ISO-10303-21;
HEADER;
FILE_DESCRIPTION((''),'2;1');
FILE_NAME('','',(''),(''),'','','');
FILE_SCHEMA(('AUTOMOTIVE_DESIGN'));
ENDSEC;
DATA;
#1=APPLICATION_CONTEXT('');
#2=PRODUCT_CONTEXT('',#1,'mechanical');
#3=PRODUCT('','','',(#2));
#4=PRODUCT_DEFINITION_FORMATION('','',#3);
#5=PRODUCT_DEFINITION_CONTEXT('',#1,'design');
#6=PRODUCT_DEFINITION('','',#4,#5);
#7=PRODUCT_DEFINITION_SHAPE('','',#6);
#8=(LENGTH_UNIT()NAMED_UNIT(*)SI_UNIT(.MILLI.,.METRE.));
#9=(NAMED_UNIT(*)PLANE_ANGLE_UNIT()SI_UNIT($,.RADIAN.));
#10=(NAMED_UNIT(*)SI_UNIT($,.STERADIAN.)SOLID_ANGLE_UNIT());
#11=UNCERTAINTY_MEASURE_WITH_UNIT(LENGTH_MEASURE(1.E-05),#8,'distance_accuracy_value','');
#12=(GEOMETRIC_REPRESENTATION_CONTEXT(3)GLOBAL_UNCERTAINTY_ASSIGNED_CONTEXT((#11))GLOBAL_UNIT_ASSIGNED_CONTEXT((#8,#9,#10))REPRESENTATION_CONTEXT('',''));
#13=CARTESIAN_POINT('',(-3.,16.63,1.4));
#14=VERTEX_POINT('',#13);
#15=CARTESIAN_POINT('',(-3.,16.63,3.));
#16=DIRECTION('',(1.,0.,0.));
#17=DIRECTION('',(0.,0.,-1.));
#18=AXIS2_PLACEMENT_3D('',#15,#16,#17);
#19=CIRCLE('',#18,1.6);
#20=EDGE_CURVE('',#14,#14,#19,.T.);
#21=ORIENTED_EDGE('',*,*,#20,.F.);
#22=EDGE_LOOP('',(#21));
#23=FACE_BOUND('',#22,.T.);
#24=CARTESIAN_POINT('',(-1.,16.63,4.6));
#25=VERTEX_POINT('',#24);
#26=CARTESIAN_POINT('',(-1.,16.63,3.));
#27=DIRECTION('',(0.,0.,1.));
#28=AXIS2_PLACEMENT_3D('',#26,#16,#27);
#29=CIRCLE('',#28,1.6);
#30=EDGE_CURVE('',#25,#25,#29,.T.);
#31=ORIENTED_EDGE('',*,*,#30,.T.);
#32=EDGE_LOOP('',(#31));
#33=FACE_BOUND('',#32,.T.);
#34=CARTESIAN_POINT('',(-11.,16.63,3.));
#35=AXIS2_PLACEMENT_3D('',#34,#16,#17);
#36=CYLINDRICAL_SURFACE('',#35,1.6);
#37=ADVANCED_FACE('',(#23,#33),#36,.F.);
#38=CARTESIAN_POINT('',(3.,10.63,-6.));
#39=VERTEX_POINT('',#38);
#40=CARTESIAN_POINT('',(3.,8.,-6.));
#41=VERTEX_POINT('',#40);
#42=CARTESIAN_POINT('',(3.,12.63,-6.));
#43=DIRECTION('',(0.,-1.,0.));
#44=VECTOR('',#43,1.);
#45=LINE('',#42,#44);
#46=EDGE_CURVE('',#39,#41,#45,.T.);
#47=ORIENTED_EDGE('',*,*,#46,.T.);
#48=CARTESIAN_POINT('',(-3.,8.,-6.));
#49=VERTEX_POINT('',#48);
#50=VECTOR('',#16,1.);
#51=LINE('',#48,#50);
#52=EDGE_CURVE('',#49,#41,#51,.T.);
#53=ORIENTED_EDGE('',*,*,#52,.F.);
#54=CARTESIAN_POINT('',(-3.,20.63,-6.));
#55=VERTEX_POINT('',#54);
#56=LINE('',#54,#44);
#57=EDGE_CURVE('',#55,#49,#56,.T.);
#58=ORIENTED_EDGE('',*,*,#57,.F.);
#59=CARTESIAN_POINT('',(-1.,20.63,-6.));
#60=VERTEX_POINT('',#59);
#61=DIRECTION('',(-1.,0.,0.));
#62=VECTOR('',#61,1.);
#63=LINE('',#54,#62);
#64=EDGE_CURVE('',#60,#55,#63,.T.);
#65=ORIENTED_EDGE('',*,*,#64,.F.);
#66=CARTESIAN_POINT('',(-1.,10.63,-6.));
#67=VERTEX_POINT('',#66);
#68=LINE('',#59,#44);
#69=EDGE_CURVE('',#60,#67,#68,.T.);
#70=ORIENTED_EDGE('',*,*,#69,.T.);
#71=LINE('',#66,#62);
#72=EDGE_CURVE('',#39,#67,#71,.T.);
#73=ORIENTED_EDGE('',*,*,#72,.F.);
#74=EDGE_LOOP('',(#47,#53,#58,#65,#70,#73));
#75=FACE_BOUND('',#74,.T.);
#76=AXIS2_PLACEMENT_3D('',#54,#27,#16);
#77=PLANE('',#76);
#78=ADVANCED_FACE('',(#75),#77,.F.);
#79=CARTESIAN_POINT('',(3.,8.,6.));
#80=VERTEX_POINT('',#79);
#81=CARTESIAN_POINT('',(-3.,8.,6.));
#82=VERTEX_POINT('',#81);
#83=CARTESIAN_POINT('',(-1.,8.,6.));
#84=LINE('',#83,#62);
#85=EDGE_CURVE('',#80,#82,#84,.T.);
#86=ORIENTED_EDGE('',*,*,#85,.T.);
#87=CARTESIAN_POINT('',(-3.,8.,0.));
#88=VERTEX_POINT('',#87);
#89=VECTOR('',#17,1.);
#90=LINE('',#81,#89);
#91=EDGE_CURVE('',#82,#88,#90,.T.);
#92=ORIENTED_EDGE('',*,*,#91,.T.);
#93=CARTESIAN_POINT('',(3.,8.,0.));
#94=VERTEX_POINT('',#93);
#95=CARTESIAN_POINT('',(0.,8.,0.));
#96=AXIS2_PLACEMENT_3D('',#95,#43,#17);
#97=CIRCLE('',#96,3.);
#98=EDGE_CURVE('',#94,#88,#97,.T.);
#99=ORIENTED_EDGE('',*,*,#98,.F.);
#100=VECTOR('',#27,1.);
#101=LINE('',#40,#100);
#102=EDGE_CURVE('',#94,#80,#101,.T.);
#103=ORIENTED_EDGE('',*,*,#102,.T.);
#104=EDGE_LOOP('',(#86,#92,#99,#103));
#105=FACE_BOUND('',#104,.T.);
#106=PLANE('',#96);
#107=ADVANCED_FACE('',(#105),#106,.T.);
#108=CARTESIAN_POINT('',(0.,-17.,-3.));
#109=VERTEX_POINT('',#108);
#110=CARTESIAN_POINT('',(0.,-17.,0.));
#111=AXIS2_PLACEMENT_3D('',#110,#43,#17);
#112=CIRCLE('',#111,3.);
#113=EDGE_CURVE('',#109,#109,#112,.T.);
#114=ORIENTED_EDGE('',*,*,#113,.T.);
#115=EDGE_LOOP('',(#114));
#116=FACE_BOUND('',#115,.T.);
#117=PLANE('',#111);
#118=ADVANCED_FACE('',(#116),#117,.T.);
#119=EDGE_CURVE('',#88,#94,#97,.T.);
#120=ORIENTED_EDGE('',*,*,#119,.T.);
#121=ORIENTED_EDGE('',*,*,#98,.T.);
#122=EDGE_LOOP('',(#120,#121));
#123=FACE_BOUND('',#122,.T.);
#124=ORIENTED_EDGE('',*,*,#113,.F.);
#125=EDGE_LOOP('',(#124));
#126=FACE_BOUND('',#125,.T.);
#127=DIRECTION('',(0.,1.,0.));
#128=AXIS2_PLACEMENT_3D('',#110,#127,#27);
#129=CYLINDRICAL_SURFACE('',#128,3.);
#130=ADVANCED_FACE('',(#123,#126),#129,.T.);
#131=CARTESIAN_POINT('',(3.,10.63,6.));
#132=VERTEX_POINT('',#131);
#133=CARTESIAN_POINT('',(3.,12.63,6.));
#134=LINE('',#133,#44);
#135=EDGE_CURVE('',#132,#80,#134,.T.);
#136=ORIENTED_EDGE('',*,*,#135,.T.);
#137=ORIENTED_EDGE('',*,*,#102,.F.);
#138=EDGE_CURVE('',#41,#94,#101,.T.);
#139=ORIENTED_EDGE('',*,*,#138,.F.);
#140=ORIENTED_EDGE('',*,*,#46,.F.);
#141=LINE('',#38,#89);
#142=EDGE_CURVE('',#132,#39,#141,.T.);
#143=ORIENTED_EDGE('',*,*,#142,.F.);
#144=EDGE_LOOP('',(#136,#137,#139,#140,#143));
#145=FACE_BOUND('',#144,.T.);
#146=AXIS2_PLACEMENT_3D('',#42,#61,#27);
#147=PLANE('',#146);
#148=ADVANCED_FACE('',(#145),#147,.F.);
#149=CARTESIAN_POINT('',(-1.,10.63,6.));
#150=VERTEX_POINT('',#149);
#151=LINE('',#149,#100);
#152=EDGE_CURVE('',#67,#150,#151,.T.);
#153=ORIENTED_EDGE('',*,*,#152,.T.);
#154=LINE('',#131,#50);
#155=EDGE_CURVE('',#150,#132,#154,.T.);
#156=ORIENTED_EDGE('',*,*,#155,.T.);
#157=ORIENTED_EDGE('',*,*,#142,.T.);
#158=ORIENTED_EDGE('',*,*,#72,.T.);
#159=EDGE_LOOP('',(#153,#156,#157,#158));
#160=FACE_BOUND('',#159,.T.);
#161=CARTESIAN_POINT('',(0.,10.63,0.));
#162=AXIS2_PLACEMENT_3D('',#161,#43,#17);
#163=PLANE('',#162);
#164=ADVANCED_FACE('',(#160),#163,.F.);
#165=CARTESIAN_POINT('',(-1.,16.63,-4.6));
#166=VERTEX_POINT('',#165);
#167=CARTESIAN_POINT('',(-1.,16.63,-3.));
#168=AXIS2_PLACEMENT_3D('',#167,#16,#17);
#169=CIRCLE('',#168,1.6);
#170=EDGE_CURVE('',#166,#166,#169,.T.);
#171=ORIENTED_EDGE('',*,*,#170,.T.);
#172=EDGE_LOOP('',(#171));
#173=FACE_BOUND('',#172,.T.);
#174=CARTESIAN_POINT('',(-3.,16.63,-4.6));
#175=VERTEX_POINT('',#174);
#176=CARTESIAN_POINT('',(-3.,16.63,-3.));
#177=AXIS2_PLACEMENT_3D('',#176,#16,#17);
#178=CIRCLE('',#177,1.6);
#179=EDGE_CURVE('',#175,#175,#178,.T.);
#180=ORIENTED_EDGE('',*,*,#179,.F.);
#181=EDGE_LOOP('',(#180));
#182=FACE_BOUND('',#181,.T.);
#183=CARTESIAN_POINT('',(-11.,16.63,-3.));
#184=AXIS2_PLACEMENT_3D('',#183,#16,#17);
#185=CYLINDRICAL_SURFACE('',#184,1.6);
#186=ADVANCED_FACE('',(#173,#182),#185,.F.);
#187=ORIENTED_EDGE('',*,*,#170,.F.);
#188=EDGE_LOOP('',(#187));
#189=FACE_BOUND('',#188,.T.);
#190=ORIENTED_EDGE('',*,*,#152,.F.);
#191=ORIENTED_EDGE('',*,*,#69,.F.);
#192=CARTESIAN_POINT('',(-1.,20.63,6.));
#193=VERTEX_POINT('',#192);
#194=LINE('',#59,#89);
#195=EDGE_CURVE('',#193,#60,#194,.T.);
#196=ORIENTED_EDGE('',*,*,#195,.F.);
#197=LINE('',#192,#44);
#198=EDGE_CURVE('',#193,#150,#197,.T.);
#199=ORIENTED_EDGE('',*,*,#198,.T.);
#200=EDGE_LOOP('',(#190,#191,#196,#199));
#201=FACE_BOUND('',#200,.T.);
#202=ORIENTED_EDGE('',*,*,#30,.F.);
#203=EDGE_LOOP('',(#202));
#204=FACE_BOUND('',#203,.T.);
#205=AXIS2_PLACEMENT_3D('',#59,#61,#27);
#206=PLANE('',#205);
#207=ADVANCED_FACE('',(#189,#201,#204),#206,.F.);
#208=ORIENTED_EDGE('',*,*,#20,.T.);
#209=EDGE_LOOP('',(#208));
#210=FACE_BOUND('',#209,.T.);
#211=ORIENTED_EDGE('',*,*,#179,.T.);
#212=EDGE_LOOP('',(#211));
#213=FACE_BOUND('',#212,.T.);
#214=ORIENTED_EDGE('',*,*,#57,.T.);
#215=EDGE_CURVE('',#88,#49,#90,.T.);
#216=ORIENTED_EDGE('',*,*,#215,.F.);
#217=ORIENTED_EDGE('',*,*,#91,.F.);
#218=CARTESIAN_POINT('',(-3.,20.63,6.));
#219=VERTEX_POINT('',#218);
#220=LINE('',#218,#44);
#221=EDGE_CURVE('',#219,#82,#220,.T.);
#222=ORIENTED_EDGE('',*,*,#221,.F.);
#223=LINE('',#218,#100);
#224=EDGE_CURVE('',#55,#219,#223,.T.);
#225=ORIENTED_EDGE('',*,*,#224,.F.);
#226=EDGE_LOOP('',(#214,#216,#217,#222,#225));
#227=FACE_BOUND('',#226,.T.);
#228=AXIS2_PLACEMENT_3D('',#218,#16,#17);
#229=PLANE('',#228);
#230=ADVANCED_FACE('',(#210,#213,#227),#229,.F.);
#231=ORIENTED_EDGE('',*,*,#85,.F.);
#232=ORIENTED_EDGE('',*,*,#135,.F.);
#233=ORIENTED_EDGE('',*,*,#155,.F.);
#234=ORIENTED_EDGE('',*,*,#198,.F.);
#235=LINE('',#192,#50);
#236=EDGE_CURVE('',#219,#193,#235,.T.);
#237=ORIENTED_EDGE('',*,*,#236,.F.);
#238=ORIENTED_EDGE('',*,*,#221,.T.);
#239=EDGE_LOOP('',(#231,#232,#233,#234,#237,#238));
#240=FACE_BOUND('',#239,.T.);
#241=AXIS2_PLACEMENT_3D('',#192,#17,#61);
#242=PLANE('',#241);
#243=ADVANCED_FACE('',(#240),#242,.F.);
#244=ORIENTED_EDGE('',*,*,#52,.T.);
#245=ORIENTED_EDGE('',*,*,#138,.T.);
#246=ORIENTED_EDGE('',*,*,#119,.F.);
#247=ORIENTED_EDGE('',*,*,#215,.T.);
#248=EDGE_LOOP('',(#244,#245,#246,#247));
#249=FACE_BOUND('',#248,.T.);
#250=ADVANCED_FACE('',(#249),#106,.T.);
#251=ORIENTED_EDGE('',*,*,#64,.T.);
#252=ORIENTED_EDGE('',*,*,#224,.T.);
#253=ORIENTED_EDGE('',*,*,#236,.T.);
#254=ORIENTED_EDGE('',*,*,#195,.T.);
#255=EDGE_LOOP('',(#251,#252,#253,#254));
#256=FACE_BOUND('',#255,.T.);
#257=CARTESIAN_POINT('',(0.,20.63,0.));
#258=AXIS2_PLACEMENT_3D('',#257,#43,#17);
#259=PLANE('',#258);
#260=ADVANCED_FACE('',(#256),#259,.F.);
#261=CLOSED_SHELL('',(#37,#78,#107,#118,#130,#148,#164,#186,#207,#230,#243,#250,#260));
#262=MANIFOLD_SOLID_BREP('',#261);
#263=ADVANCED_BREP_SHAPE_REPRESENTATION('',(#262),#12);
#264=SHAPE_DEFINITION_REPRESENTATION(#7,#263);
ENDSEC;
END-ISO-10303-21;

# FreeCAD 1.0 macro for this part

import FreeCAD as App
import Part
import Sketcher

doc = App.newDocument("Part")
params = doc.addObject("Spreadsheet::Sheet", "Params")
for row, (alias, value) in enumerate([
    ("sketch1_diameter", "24.5 mm"),
    ("sketch1_diameter2", "2.5 mm"),
    ("pad1_length", "2 mm"),
    ("sketch2_diameter", "6 mm"),
    ("pad2_length", "10.63 mm"),
    ("sketch3_width", "2 mm"),
    ("sketch3_height", "12 mm"),
    ("pad3_length", "8 mm"),
    ("sketch4_diameter", "3.2 mm"),
    ("pocket1_length", "10 mm"),
    ("sketch5_width", "6 mm"),
    ("sketch5_height", "12 mm"),
    ("pad4_length", "10.63 mm"),
    ("sketch6_width", "4 mm"),
    ("sketch6_height", "12 mm"),
    ("pocket2_length", "2 mm"),
    ("sketch7_diameter", "24.5 mm"),
    ("pocket3_length", "8 mm"),
    ("sketch8_diameter", "6 mm"),
    ("pad5_length", "25 mm"),
], start=1):
    params.set(f"A{row}", alias)
    params.set(f"B{row}", "=" + value)
    params.setAlias(f"B{row}", alias)

body = doc.addObject("PartDesign::Body", "Body")

# Sketch on XZ plane
sketch1 = doc.addObject("Sketcher::SketchObject", "Sketch")
body.addObject(sketch1)
sketch1.AttachmentSupport = (doc.XZ_Plane, [""])
sketch1.MapMode = "FlatFace"
sketch1.addGeometry([
    Part.Circle(App.Vector(0, 0, 0), App.Vector(0, 0, 1), 12.2),  # 0
    Part.Circle(App.Vector(0, 8, 0), App.Vector(0, 0, 1), 1.2),  # 1
    Part.Circle(App.Vector(-8, 0, 0), App.Vector(0, 0, 1), 1.2),  # 2
    Part.Circle(App.Vector(8, 0, 0), App.Vector(0, 0, 1), 1.2),  # 3
    Part.Circle(App.Vector(0, -8, 0), App.Vector(0, 0, 1), 1.2),  # 4
], False)
sketch1.addConstraint([
    Sketcher.Constraint("Coincident", 0, 3, -1, 1),
    Sketcher.Constraint("Equal", 1, 2),
    Sketcher.Constraint("Equal", 2, 3),
    Sketcher.Constraint("Equal", 3, 4),
    Sketcher.Constraint("Symmetric", 2, 3, 3, 3, -1, 1),
    Sketcher.Constraint("Symmetric", 1, 3, 4, 3, -1, 1),
    Sketcher.Constraint("PointOnObject", 1, 3, -2),
    Sketcher.Constraint("PointOnObject", 2, 3, -1),
    Sketcher.Constraint("Diameter", 0, 24.5),
    Sketcher.Constraint("Diameter", 1, 2.5),
    Sketcher.Constraint("DistanceY", -1, 1, 1, 3, 8.0),
    Sketcher.Constraint("DistanceX", 2, 3, -1, 1, 8.0),
])
sketch1.setExpression("Constraints[8]", "Params.sketch1_diameter")
sketch1.setExpression("Constraints[9]", "Params.sketch1_diameter2")
pad1 = doc.addObject("PartDesign::Pad", "Pad")
body.addObject(pad1)
pad1.Profile = sketch1
pad1.setExpression("Length", "Params.pad1_length")
pad1.Reversed = True

# Sketch on XZ plane
sketch2 = doc.addObject("Sketcher::SketchObject", "Sketch001")
body.addObject(sketch2)
sketch2.AttachmentSupport = (doc.XZ_Plane, [""])
sketch2.MapMode = "FlatFace"
sketch2.AttachmentOffset = App.Placement(App.Vector(0, 0, -2), App.Rotation())
sketch2.addGeometry(Part.Circle(App.Vector(0, 0, 0), App.Vector(0, 0, 1), 3), False)
sketch2.addConstraint([
    Sketcher.Constraint("Coincident", 0, 3, -1, 1),
    Sketcher.Constraint("Diameter", 0, 6.0),
])
sketch2.setExpression("Constraints[1]", "Params.sketch2_diameter")
pad2 = doc.addObject("PartDesign::Pad", "Pad001")
body.addObject(pad2)
pad2.Profile = sketch2
pad2.setExpression("Length", "Params.pad2_length")
pad2.Reversed = True

# Sketch on XZ plane
sketch3 = doc.addObject("Sketcher::SketchObject", "Sketch002")
body.addObject(sketch3)
sketch3.AttachmentSupport = (doc.XZ_Plane, [""])
sketch3.MapMode = "FlatFace"
sketch3.AttachmentOffset = App.Placement(App.Vector(0, 0, -12.63), App.Rotation())
sketch3.addGeometry([
    Part.LineSegment(App.Vector(-3, -6, 0), App.Vector(-3, 6, 0)),
    Part.LineSegment(App.Vector(-3, 6, 0), App.Vector(-1, 6, 0)),
    Part.LineSegment(App.Vector(-1, 6, 0), App.Vector(-1, -6, 0)),
    Part.LineSegment(App.Vector(-1, -6, 0), App.Vector(-3, -6, 0)),
], False)
sketch3.addConstraint([
    Sketcher.Constraint("Coincident", 0, 2, 1, 1),
    Sketcher.Constraint("Coincident", 1, 2, 2, 1),
    Sketcher.Constraint("Coincident", 2, 2, 3, 1),
    Sketcher.Constraint("Coincident", 3, 2, 0, 1),
    Sketcher.Constraint("Vertical", 0),
    Sketcher.Constraint("Horizontal", 1),
    Sketcher.Constraint("Vertical", 2),
    Sketcher.Constraint("Horizontal", 3),
    Sketcher.Constraint("DistanceX", 1, 1, 1, 2, 2.0),
    Sketcher.Constraint("DistanceY", 0, 1, 0, 2, 12.0),
    Sketcher.Constraint("DistanceX", 0, 2, -1, 1, 3.0),
    Sketcher.Constraint("DistanceY", -1, 1, 0, 2, 6.0),
])
sketch3.setExpression("Constraints[8]", "Params.sketch3_width")
sketch3.setExpression("Constraints[9]", "Params.sketch3_height")
pad3 = doc.addObject("PartDesign::Pad", "Pad002")
body.addObject(pad3)
pad3.Profile = sketch3
pad3.setExpression("Length", "Params.pad3_length")
pad3.Reversed = True

# Sketch on YZ plane
sketch4 = doc.addObject("Sketcher::SketchObject", "Sketch003")
body.addObject(sketch4)
sketch4.AttachmentSupport = (doc.YZ_Plane, [""])
sketch4.MapMode = "FlatFace"
sketch4.AttachmentOffset = App.Placement(App.Vector(0, 0, -1), App.Rotation())
sketch4.addGeometry([
    Part.Circle(App.Vector(16.6, -3, 0), App.Vector(0, 0, 1), 1.6),
    Part.Circle(App.Vector(16.6, 3, 0), App.Vector(0, 0, 1), 1.6),
], False)
sketch4.addConstraint([
    Sketcher.Constraint("Equal", 0, 1),
    Sketcher.Constraint("Symmetric", 0, 3, 1, 3, -1),
    Sketcher.Constraint("Diameter", 0, 3.2),
    Sketcher.Constraint("DistanceY", 0, 3, -1, 1, 3.0),
    Sketcher.Constraint("DistanceX", -1, 1, 0, 3, 16.63),
])
sketch4.setExpression("Constraints[2]", "Params.sketch4_diameter")
pocket1 = doc.addObject("PartDesign::Pocket", "Pocket")
body.addObject(pocket1)
pocket1.Profile = sketch4
pocket1.setExpression("Length", "Params.pocket1_length")

# Sketch on XZ plane
sketch5 = doc.addObject("Sketcher::SketchObject", "Sketch004")
body.addObject(sketch5)
sketch5.AttachmentSupport = (doc.XZ_Plane, [""])
sketch5.MapMode = "FlatFace"
sketch5.AttachmentOffset = App.Placement(App.Vector(0, 0, -2), App.Rotation())
sketch5.addGeometry([
    Part.LineSegment(App.Vector(-3, -6, 0), App.Vector(-3, 6, 0)),
    Part.LineSegment(App.Vector(-3, 6, 0), App.Vector(3, 6, 0)),
    Part.LineSegment(App.Vector(3, 6, 0), App.Vector(3, -6, 0)),
    Part.LineSegment(App.Vector(3, -6, 0), App.Vector(-3, -6, 0)),
], False)
sketch5.addConstraint([
    Sketcher.Constraint("Coincident", 0, 2, 1, 1),
    Sketcher.Constraint("Coincident", 1, 2, 2, 1),
    Sketcher.Constraint("Coincident", 2, 2, 3, 1),
    Sketcher.Constraint("Coincident", 3, 2, 0, 1),
    Sketcher.Constraint("Vertical", 0),
    Sketcher.Constraint("Horizontal", 1),
    Sketcher.Constraint("Vertical", 2),
    Sketcher.Constraint("Horizontal", 3),
    Sketcher.Constraint("Symmetric", 0, 2, 2, 2, -1, 1),
    Sketcher.Constraint("DistanceX", 1, 1, 1, 2, 6.0),
    Sketcher.Constraint("DistanceY", 0, 1, 0, 2, 12.0),
])
sketch5.setExpression("Constraints[9]", "Params.sketch5_width")
sketch5.setExpression("Constraints[10]", "Params.sketch5_height")
pad4 = doc.addObject("PartDesign::Pad", "Pad003")
body.addObject(pad4)
pad4.Profile = sketch5
pad4.setExpression("Length", "Params.pad4_length")
pad4.Reversed = True

# Sketch on XZ plane
sketch6 = doc.addObject("Sketcher::SketchObject", "Sketch005")
body.addObject(sketch6)
sketch6.AttachmentSupport = (doc.XZ_Plane, [""])
sketch6.MapMode = "FlatFace"
sketch6.AttachmentOffset = App.Placement(App.Vector(0, 0, -12.63), App.Rotation())
sketch6.addGeometry([
    Part.LineSegment(App.Vector(-1, -6, 0), App.Vector(-1, 6, 0)),
    Part.LineSegment(App.Vector(-1, 6, 0), App.Vector(3, 6, 0)),
    Part.LineSegment(App.Vector(3, 6, 0), App.Vector(3, -6, 0)),
    Part.LineSegment(App.Vector(3, -6, 0), App.Vector(-1, -6, 0)),
], False)
sketch6.addConstraint([
    Sketcher.Constraint("Coincident", 0, 2, 1, 1),
    Sketcher.Constraint("Coincident", 1, 2, 2, 1),
    Sketcher.Constraint("Coincident", 2, 2, 3, 1),
    Sketcher.Constraint("Coincident", 3, 2, 0, 1),
    Sketcher.Constraint("Vertical", 0),
    Sketcher.Constraint("Horizontal", 1),
    Sketcher.Constraint("Vertical", 2),
    Sketcher.Constraint("Horizontal", 3),
    Sketcher.Constraint("DistanceX", 1, 1, 1, 2, 4.0),
    Sketcher.Constraint("DistanceY", 0, 1, 0, 2, 12.0),
    Sketcher.Constraint("DistanceX", 0, 2, -1, 1, 1.0),
    Sketcher.Constraint("DistanceY", -1, 1, 0, 2, 6.0),
])
sketch6.setExpression("Constraints[8]", "Params.sketch6_width")
sketch6.setExpression("Constraints[9]", "Params.sketch6_height")
pocket2 = doc.addObject("PartDesign::Pocket", "Pocket001")
body.addObject(pocket2)
pocket2.Profile = sketch6
pocket2.setExpression("Length", "Params.pocket2_length")
pocket2.Reversed = True

# Sketch on XZ plane
sketch7 = doc.addObject("Sketcher::SketchObject", "Sketch006")
body.addObject(sketch7)
sketch7.AttachmentSupport = (doc.XZ_Plane, [""])
sketch7.MapMode = "FlatFace"
sketch7.addGeometry(Part.Circle(App.Vector(0, 0, 0), App.Vector(0, 0, 1), 12), False)
sketch7.addConstraint([
    Sketcher.Constraint("Coincident", 0, 3, -1, 1),
    Sketcher.Constraint("Diameter", 0, 24.5),
])
sketch7.setExpression("Constraints[1]", "Params.sketch7_diameter")
pocket3 = doc.addObject("PartDesign::Pocket", "Pocket002")
body.addObject(pocket3)
pocket3.Profile = sketch7
pocket3.setExpression("Length", "Params.pocket3_length")

# Sketch on XZ plane
sketch8 = doc.addObject("Sketcher::SketchObject", "Sketch007")
body.addObject(sketch8)
sketch8.AttachmentSupport = (doc.XZ_Plane, [""])
sketch8.MapMode = "FlatFace"
sketch8.AttachmentOffset = App.Placement(App.Vector(0, 0, -8), App.Rotation())
sketch8.addGeometry(Part.Circle(App.Vector(0, 0, 0), App.Vector(0, 0, 1), 3), False)
sketch8.addConstraint([
    Sketcher.Constraint("Coincident", 0, 3, -1, 1),
    Sketcher.Constraint("Diameter", 0, 6.0),
])
sketch8.setExpression("Constraints[1]", "Params.sketch8_diameter")
pad5 = doc.addObject("PartDesign::Pad", "Pad004")
body.addObject(pad5)
pad5.Profile = sketch8
pad5.setExpression("Length", "Params.pad5_length")

doc.recompute()
